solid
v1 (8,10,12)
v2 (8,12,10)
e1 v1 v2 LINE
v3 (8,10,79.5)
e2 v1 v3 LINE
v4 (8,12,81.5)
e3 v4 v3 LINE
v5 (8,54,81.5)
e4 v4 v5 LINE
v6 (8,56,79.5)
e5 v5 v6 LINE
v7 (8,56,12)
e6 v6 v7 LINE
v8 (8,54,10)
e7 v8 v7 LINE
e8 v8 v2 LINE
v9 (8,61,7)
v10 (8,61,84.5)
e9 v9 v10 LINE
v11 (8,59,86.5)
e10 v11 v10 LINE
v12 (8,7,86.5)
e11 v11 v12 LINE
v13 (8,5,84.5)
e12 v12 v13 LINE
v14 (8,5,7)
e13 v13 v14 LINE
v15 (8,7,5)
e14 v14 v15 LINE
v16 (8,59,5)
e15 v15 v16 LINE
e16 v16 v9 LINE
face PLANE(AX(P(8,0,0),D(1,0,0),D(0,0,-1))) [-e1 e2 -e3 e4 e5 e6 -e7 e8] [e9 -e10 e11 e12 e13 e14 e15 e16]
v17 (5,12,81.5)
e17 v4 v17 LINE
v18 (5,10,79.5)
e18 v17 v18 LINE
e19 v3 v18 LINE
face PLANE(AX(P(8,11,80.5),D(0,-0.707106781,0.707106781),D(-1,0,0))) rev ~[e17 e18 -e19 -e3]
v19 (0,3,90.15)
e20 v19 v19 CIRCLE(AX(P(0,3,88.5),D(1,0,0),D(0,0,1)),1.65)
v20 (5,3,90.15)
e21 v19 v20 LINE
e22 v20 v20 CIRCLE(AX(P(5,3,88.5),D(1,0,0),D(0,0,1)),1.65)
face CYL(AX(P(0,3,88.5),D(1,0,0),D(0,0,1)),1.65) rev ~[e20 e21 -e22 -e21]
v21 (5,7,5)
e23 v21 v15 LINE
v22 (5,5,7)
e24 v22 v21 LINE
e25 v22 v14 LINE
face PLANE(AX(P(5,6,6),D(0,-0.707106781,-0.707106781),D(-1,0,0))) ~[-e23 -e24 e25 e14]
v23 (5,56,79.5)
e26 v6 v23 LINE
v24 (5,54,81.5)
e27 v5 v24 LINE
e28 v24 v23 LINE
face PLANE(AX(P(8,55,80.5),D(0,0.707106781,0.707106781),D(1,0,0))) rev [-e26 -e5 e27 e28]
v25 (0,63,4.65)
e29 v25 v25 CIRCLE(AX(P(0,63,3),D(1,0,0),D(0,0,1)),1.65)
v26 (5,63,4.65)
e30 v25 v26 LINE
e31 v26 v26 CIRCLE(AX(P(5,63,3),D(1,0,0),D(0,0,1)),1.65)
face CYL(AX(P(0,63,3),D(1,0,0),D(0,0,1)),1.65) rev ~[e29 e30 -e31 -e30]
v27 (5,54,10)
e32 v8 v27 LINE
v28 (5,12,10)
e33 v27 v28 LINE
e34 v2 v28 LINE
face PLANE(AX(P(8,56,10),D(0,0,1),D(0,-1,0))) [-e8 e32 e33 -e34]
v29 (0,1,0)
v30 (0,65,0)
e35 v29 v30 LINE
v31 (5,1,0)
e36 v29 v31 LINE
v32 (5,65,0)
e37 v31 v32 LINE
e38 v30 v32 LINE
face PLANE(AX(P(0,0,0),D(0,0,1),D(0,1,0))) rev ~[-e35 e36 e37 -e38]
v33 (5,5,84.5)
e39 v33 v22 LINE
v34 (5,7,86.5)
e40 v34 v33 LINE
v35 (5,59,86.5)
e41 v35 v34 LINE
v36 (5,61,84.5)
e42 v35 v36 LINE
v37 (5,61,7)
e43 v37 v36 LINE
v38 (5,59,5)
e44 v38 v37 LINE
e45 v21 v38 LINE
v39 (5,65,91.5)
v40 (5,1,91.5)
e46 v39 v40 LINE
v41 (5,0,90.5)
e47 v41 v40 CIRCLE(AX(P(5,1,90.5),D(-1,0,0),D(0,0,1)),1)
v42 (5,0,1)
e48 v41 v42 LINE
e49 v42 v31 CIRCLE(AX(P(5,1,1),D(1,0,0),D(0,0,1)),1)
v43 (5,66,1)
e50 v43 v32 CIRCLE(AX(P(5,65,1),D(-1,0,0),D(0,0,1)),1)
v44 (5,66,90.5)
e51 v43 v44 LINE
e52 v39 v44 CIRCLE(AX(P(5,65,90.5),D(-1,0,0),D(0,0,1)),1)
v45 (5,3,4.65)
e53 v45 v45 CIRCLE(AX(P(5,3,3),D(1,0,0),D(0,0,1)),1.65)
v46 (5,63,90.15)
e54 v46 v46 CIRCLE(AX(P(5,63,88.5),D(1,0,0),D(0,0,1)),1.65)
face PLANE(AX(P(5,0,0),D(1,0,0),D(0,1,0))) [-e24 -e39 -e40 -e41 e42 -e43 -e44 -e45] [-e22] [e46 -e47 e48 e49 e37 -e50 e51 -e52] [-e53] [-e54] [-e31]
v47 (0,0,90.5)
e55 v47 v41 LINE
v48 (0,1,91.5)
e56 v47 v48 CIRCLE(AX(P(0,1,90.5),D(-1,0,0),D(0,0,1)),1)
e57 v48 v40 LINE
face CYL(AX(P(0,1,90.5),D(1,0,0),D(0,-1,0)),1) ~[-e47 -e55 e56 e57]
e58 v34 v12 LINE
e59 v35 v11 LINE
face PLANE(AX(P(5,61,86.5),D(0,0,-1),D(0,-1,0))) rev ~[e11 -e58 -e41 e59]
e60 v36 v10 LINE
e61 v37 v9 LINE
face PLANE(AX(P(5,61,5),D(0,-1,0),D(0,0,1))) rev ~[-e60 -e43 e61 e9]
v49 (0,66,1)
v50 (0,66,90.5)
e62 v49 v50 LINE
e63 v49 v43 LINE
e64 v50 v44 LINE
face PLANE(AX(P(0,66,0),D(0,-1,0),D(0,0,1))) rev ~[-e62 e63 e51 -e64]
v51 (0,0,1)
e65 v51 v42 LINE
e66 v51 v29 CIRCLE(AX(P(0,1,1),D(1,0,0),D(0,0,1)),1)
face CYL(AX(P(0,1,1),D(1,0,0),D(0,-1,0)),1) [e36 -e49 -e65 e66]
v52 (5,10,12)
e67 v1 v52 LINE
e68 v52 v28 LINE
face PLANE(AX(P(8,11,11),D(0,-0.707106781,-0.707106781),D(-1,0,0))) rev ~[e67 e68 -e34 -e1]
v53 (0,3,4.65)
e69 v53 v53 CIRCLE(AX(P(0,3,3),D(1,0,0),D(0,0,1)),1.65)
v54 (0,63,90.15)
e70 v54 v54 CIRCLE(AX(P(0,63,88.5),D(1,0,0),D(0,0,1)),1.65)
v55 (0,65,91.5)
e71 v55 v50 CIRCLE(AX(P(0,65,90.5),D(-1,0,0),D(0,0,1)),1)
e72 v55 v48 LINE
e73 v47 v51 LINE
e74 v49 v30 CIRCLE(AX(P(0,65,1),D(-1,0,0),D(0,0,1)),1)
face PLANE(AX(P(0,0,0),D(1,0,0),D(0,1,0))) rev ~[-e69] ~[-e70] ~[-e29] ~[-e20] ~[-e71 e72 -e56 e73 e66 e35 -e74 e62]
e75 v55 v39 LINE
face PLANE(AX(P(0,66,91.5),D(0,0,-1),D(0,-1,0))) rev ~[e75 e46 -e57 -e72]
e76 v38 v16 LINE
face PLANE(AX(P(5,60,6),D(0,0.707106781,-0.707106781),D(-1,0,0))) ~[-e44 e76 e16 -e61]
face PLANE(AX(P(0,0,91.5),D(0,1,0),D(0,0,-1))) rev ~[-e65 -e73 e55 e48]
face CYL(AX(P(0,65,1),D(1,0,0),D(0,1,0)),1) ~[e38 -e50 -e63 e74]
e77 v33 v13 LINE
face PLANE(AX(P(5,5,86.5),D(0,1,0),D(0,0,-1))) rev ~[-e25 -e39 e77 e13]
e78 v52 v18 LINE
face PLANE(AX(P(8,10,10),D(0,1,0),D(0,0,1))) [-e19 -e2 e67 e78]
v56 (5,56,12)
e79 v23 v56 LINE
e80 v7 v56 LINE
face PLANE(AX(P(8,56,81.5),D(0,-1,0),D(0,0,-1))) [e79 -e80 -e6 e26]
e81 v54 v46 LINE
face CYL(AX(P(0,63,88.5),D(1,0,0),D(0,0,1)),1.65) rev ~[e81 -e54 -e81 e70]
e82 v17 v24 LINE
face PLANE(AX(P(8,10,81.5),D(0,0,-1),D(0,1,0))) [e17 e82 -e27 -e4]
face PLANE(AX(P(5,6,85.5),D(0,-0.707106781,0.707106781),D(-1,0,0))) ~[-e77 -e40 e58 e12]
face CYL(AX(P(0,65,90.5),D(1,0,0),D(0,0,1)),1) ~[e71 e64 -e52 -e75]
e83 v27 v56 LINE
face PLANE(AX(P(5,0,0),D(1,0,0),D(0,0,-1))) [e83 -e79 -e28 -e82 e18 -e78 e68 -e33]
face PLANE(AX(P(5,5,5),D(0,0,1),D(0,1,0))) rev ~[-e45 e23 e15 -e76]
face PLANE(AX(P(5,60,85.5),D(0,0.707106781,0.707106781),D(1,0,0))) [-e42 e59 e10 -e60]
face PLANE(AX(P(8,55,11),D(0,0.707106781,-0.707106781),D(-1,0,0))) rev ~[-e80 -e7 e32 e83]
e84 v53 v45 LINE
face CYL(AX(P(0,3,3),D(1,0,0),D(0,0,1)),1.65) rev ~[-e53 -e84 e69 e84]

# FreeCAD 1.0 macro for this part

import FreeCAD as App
import Part
import Sketcher
from FreeCAD import Vector
Q = App.Units.Quantity


def edges_at(feature, points):
    """Names of the edges that pass closest to the given points."""
    edges = feature.Shape.Edges
    near = lambda p: min(range(len(edges)), key=lambda i: edges[i].distToShape(Part.Vertex(*p))[0])
    return sorted({f"Edge{near(p) + 1}" for p in points})


def add_polygon(sketch, points):
    """Adds a closed chain of lines whose ends are joined by coincident constraints."""
    first, n = sketch.GeometryCount, len(points)
    for a, b in zip(points, points[1:] + points[:1]):
        sketch.addGeometry(Part.LineSegment(App.Vector(*a, 0), App.Vector(*b, 0)), False)
    for i in range(n):
        sketch.addConstraint(Sketcher.Constraint("Coincident", first + i, 2, first + (i + 1) % n, 1))

doc = App.newDocument("Part")
body = doc.addObject("PartDesign::Body", "Body")

# Sketch on YZ plane
sketch1 = body.newObject("Sketcher::SketchObject", "Sketch")
sketch1.AttachmentSupport = (doc.getObject("YZ_Plane"), [""])
sketch1.MapMode = "FlatFace"
add_polygon(sketch1, [(0, 92), (0, 0), (66, 0), (66, 92)])  # lines 0-3
sketch1.addConstraint(Sketcher.Constraint("Vertical", 0))
sketch1.addConstraint(Sketcher.Constraint("Horizontal", 1))
sketch1.addConstraint(Sketcher.Constraint("Vertical", 2))
sketch1.addConstraint(Sketcher.Constraint("Horizontal", 3))
sketch1.addConstraint(Sketcher.Constraint("Coincident", 0, 2, -1, 1))
sketch1.addConstraint(Sketcher.Constraint("DistanceX", 1, 1, 1, 2, Q("66 mm")))
sketch1.addConstraint(Sketcher.Constraint("DistanceY", 0, 2, 0, 1, Q("91.5 mm")))
pad1 = body.newObject("PartDesign::Pad", "Pad")
pad1.Profile = sketch1
pad1.Length = 5
doc.recompute()

fillet = body.newObject("PartDesign::Fillet", "Fillet")
fillet.Base = (pad1, edges_at(pad1, [
    (2.5, 0, 91.5),
    (2.5, 0, 0),
    (2.5, 66, 0),
    (2.5, 66, 91.5),
]))
fillet.Radius = 1

# Sketch on YZ plane
sketch2 = body.newObject("Sketcher::SketchObject", "Sketch001")
sketch2.AttachmentSupport = (doc.getObject("YZ_Plane"), [""])
sketch2.MapMode = "FlatFace"
sketch2.AttachmentOffset = App.Placement(Vector(0, 0, 5), App.Rotation())
add_polygon(sketch2, [(61, 86), (5, 86), (5, 5), (61, 5)])  # lines 0-3
sketch2.addConstraint(Sketcher.Constraint("Horizontal", 0))
sketch2.addConstraint(Sketcher.Constraint("Vertical", 1))
sketch2.addConstraint(Sketcher.Constraint("Horizontal", 2))
sketch2.addConstraint(Sketcher.Constraint("Vertical", 3))
sketch2.addConstraint(Sketcher.Constraint("DistanceX", -1, 1, 0, 2, Q("5 mm")))
sketch2.addConstraint(Sketcher.Constraint("DistanceY", -1, 1, 1, 2, Q("5 mm")))
sketch2.addConstraint(Sketcher.Constraint("DistanceX", 0, 2, 0, 1, Q("56 mm")))
sketch2.addConstraint(Sketcher.Constraint("DistanceY", 1, 2, 1, 1, Q("81.5 mm")))
pad2 = body.newObject("PartDesign::Pad", "Pad001")
pad2.Profile = sketch2
pad2.Length = 3
doc.recompute()

chamfer = body.newObject("PartDesign::Chamfer", "Chamfer")
chamfer.Base = (pad2, edges_at(pad2, [
    (6.5, 61, 86.5),
    (6.5, 5, 86.5),
    (6.5, 5, 5),
    (6.5, 61, 5),
]))
chamfer.Size = 2

# Sketch on YZ plane
sketch3 = body.newObject("Sketcher::SketchObject", "Sketch002")
sketch3.AttachmentSupport = (doc.getObject("YZ_Plane"), [""])
sketch3.MapMode = "FlatFace"
sketch3.AttachmentOffset = App.Placement(Vector(0, 0, 8), App.Rotation())
add_polygon(sketch3, [(56, 10), (56, 82), (10, 82), (10, 10)])  # lines 0-3
sketch3.addConstraint(Sketcher.Constraint("Vertical", 0))
sketch3.addConstraint(Sketcher.Constraint("Horizontal", 1))
sketch3.addConstraint(Sketcher.Constraint("Vertical", 2))
sketch3.addConstraint(Sketcher.Constraint("Horizontal", 3))
sketch3.addConstraint(Sketcher.Constraint("DistanceX", 1, 2, 1, 1, Q("46 mm")))
sketch3.addConstraint(Sketcher.Constraint("DistanceY", 0, 1, 0, 2, Q("71.5 mm")))
sketch3.addConstraint(Sketcher.Constraint("DistanceX", -1, 1, 0, 2, Q("56 mm")))
sketch3.addConstraint(Sketcher.Constraint("DistanceY", -1, 1, 2, 2, Q("10 mm")))
pocket1 = body.newObject("PartDesign::Pocket", "Pocket")
pocket1.Profile = sketch3
pocket1.Length = 3
doc.recompute()

chamfer2 = body.newObject("PartDesign::Chamfer", "Chamfer001")
chamfer2.Base = (pocket1, edges_at(pocket1, [
    (6.5, 56, 81.5),
    (6.5, 56, 10),
    (6.5, 10, 81.5),
    (6.5, 10, 10),
]))
chamfer2.Size = 2

# Sketch on YZ plane
sketch4 = body.newObject("Sketcher::SketchObject", "Sketch003")
sketch4.AttachmentSupport = (doc.getObject("YZ_Plane"), [""])
sketch4.MapMode = "FlatFace"
sketch4.addGeometry(Part.Circle(Vector(63, 88.5, 0), Vector(0, 0, 1), 1.6), False)
sketch4.addGeometry(Part.Circle(Vector(3, 88.5, 0), Vector(0, 0, 1), 1.6), False)
sketch4.addGeometry(Part.Circle(Vector(3, 3, 0), Vector(0, 0, 1), 1.6), False)
sketch4.addGeometry(Part.Circle(Vector(63, 3, 0), Vector(0, 0, 1), 1.6), False)
sketch4.addConstraint(Sketcher.Constraint("Equal", 0, 1))
sketch4.addConstraint(Sketcher.Constraint("Equal", 1, 2))
sketch4.addConstraint(Sketcher.Constraint("Equal", 2, 3))
sketch4.addConstraint(Sketcher.Constraint("Horizontal", 0, 3, 1, 3))
sketch4.addConstraint(Sketcher.Constraint("Horizontal", 2, 3, 3, 3))
sketch4.addConstraint(Sketcher.Constraint("Vertical", 1, 3, 2, 3))
sketch4.addConstraint(Sketcher.Constraint("Vertical", 0, 3, 3, 3))
sketch4.addConstraint(Sketcher.Constraint("Diameter", 0, Q("3.3 mm")))
sketch4.addConstraint(Sketcher.Constraint("DistanceX", -1, 1, 0, 3, Q("63 mm")))
sketch4.addConstraint(Sketcher.Constraint("DistanceX", -1, 1, 1, 3, Q("3 mm")))
sketch4.addConstraint(Sketcher.Constraint("DistanceY", -1, 1, 2, 3, Q("3 mm")))
sketch4.addConstraint(Sketcher.Constraint("DistanceY", -1, 1, 0, 3, Q("88.5 mm")))
doc.recompute()
hole = body.newObject("PartDesign::Hole", "Hole")
hole.Profile = sketch4
hole.ThreadType = "None"
hole.Diameter = 3.3
hole.DepthType = "ThroughAll"
hole.Reversed = True

doc.recompute()
